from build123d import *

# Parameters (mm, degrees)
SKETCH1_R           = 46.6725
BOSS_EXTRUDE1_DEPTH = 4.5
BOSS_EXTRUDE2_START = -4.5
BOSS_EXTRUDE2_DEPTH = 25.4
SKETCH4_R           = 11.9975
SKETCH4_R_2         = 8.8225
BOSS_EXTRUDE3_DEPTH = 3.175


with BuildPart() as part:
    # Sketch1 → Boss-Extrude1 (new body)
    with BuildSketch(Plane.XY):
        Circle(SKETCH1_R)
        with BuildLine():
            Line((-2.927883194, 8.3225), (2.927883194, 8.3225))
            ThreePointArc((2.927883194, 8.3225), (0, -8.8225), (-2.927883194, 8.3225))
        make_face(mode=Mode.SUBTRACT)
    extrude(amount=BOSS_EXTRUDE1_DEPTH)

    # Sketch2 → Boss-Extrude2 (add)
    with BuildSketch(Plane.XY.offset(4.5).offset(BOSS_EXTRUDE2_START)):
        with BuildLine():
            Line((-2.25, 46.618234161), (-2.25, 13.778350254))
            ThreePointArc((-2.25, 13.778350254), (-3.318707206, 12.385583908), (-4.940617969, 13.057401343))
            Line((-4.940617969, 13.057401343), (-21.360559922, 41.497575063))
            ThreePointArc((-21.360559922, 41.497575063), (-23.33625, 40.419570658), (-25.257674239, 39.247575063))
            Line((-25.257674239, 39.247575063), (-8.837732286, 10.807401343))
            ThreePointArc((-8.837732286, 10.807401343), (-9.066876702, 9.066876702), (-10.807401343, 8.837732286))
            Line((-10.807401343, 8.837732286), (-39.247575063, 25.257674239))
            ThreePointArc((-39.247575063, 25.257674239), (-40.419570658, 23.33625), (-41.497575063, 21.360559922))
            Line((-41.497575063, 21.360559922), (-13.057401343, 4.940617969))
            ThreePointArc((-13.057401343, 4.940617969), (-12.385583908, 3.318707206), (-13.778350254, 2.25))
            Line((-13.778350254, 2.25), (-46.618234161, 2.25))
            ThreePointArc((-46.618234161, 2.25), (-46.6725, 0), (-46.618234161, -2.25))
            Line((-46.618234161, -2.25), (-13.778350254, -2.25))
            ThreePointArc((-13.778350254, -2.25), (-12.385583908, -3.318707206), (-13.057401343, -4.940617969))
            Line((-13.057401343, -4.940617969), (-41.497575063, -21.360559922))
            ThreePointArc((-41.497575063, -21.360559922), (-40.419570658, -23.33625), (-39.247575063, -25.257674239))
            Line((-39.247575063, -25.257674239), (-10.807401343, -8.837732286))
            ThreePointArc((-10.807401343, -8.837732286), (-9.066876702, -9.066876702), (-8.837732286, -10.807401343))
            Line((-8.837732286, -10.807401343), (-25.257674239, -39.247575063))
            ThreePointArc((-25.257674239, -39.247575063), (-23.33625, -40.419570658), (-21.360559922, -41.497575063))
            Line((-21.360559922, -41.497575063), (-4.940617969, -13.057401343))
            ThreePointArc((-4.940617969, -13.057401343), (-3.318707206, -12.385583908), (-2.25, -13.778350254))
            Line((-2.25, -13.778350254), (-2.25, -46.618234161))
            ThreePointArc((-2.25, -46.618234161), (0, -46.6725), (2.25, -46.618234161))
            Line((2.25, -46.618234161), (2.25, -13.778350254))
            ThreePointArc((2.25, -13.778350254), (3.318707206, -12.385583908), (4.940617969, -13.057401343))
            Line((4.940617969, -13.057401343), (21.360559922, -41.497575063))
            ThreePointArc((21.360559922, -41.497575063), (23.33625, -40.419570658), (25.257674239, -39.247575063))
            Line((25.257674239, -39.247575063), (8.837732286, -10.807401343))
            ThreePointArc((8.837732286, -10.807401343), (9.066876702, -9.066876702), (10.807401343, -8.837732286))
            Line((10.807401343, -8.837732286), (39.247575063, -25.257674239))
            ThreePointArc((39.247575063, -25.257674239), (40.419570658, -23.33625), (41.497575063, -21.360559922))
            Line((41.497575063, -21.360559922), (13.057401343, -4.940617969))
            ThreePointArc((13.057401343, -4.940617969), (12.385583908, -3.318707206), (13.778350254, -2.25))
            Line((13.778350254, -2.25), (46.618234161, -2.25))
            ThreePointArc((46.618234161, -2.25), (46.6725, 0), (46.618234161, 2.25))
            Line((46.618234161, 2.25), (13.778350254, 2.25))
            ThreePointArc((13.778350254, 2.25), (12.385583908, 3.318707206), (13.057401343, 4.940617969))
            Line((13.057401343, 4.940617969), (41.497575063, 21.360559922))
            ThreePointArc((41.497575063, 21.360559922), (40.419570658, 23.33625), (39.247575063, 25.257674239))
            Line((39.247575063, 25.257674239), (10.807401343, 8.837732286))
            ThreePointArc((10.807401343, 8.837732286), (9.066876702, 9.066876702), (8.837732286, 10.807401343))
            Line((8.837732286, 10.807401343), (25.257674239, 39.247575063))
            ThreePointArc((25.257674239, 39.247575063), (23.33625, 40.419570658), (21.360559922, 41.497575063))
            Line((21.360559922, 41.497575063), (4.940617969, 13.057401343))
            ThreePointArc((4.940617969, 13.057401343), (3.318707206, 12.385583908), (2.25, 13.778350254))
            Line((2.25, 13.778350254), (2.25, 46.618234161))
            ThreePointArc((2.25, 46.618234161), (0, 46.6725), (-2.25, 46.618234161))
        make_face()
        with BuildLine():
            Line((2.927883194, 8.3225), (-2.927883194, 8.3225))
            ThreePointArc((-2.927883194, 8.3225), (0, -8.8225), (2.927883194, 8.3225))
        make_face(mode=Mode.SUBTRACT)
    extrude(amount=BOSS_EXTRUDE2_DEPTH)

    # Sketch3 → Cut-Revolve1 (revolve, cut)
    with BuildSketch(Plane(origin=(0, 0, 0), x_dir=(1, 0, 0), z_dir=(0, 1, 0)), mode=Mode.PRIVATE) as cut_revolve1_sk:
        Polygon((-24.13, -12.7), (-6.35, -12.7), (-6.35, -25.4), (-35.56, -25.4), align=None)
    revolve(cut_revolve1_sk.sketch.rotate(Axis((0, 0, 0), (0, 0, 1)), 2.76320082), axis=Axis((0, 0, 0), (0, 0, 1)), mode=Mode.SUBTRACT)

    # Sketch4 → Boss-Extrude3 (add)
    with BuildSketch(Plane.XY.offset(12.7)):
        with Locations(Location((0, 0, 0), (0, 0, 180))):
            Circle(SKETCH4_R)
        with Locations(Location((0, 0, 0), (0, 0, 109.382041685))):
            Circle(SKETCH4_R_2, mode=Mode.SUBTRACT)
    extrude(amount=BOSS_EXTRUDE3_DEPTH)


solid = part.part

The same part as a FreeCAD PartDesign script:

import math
import FreeCAD as App
import Part
import Sketcher
from FreeCAD import Vector
Q = App.Units.Quantity


def add_polygon(sketch, points):
    """Adds a closed chain of lines whose ends are joined by coincident constraints."""
    first, n = sketch.GeometryCount, len(points)
    for a, b in zip(points, points[1:] + points[:1]):
        sketch.addGeometry(Part.LineSegment(App.Vector(*a, 0), App.Vector(*b, 0)), False)
    for i in range(n):
        sketch.addConstraint(Sketcher.Constraint("Coincident", first + i, 2, first + (i + 1) % n, 1))

doc = App.newDocument("Part")
params = doc.addObject("Spreadsheet::Sheet", "Params")
for row, (alias, value) in enumerate([
    ("sketch1_diameter", "3.675 in"),
    ("pad1_length", "4.5 mm"),
    ("pad2_length", "1 in"),
    ("sketch3_width", "0.7 in"),
    ("sketch3_height", "0.5 in"),
    ("sketch3_width2", "1.15 in"),
    ("groove_angle", "360 deg"),
    ("pad3_length", "0.125 in"),
], start=1):
    params.set(f"A{row}", alias)
    params.set(f"B{row}", "=" + value)
    params.setAlias(f"B{row}", alias)

body = doc.addObject("PartDesign::Body", "Body")

sketch1 = body.newObject("Sketcher::SketchObject", "Sketch")
sketch1.AttachmentSupport = (doc.getObject("XY_Plane"), [""])
sketch1.MapMode = "FlatFace"
sketch1.addGeometry([
    Part.Circle(Vector(0, 0, 0), Vector(0, 0, 1), 47),
    Part.ArcOfCircle(Part.Circle(Vector(0, 0, 0), Vector(0, 0, 1), 9), math.radians(109), math.radians(431)),
    Part.LineSegment(Vector(-3, 8, 0), Vector(3, 8, 0)),
], False)
sketch1.addConstraint([
    Sketcher.Constraint("Coincident", 1, 1, 2, 1),
    Sketcher.Constraint("Coincident", 2, 2, 1, 2),
    Sketcher.Constraint("Horizontal", 2),
    Sketcher.Constraint("Coincident", 0, 3, -1, 1),
    Sketcher.Constraint("Coincident", 1, 3, -1, 1),
    Sketcher.Constraint("Diameter", 0, Q("3.675 in")),
    Sketcher.Constraint("Radius", 1, Q("8.8225 mm")),
    Sketcher.Constraint("DistanceY", -1, 1, 1, 1, Q("8.3225 mm")),
])
sketch1.setExpression("Constraints[5]", "Params.sketch1_diameter")
pad1 = body.newObject("PartDesign::Pad", "Pad")
pad1.Profile = sketch1
pad1.setExpression("Length", "Params.pad1_length")

sketch2 = body.newObject("Sketcher::SketchObject", "Sketch001")
sketch2.AttachmentSupport = (doc.getObject("XY_Plane"), [""])
sketch2.MapMode = "FlatFace"
sketch2.addGeometry([
    Part.LineSegment(Vector(-2.2, 46.6, 0), Vector(-2.2, 13.8, 0)),
    Part.ArcOfCircle(Part.Circle(Vector(-3.7, 13.8, 0), Vector(0, 0, 1), 1.4), math.radians(-150), math.radians(0)),
    Part.LineSegment(Vector(-4.9, 13.1, 0), Vector(-21.4, 41.5, 0)),
    Part.ArcOfCircle(Part.Circle(Vector(0, 0, 0), Vector(0, 0, 1), 46.7), math.radians(117.24), math.radians(122.76)),
    Part.LineSegment(Vector(-25.3, 39.2, 0), Vector(-8.8, 10.8, 0)),
    Part.ArcOfCircle(Part.Circle(Vector(-10.1, 10.1, 0), Vector(0, 0, 1), 1.4), math.radians(-120), math.radians(30)),
    Part.LineSegment(Vector(-10.8, 8.8, 0), Vector(-39.2, 25.3, 0)),
    Part.ArcOfCircle(Part.Circle(Vector(0, 0, 0), Vector(0, 0, 1), 46.7), math.radians(147.24), math.radians(152.76)),
    Part.LineSegment(Vector(-41.5, 21.4, 0), Vector(-13.1, 4.9, 0)),
    Part.ArcOfCircle(Part.Circle(Vector(-13.8, 3.7, 0), Vector(0, 0, 1), 1.4), math.radians(-90), math.radians(60)),
    Part.LineSegment(Vector(-13.8, 2.2, 0), Vector(-46.6, 2.2, 0)),
    Part.ArcOfCircle(Part.Circle(Vector(0, 0, 0), Vector(0, 0, 1), 46.7), math.radians(177.24), math.radians(182.76)),
    Part.LineSegment(Vector(-46.6, -2.2, 0), Vector(-13.8, -2.2, 0)),
    Part.ArcOfCircle(Part.Circle(Vector(-13.8, -3.7, 0), Vector(0, 0, 1), 1.4), math.radians(-60), math.radians(90)),
    Part.LineSegment(Vector(-13.1, -4.9, 0), Vector(-41.5, -21.4, 0)),
    Part.ArcOfCircle(Part.Circle(Vector(0, 0, 0), Vector(0, 0, 1), 46.7), math.radians(-152.76), math.radians(-147.24)),
    Part.LineSegment(Vector(-39.2, -25.3, 0), Vector(-10.8, -8.8, 0)),
    Part.ArcOfCircle(Part.Circle(Vector(-10.1, -10.1, 0), Vector(0, 0, 1), 1.4), math.radians(-30), math.radians(120)),
    Part.LineSegment(Vector(-8.8, -10.8, 0), Vector(-25.3, -39.2, 0)),
    Part.ArcOfCircle(Part.Circle(Vector(0, 0, 0), Vector(0, 0, 1), 46.7), math.radians(-122.76), math.radians(-117.24)),
    Part.LineSegment(Vector(-21.4, -41.5, 0), Vector(-4.9, -13.1, 0)),
    Part.ArcOfCircle(Part.Circle(Vector(-3.7, -13.8, 0), Vector(0, 0, 1), 1.4), math.radians(0), math.radians(150)),
    Part.LineSegment(Vector(-2.2, -13.8, 0), Vector(-2.2, -46.6, 0)),
    Part.ArcOfCircle(Part.Circle(Vector(0, 0, 0), Vector(0, 0, 1), 46.7), math.radians(-92.76), math.radians(-87.24)),
    Part.LineSegment(Vector(2.2, -46.6, 0), Vector(2.2, -13.8, 0)),
    Part.ArcOfCircle(Part.Circle(Vector(3.7, -13.8, 0), Vector(0, 0, 1), 1.4), math.radians(30), math.radians(180)),
    Part.LineSegment(Vector(4.9, -13.1, 0), Vector(21.4, -41.5, 0)),
    Part.ArcOfCircle(Part.Circle(Vector(0, 0, 0), Vector(0, 0, 1), 46.7), math.radians(-62.76), math.radians(-57.24)),
    Part.LineSegment(Vector(25.3, -39.2, 0), Vector(8.8, -10.8, 0)),
    Part.ArcOfCircle(Part.Circle(Vector(10.1, -10.1, 0), Vector(0, 0, 1), 1.4), math.radians(60), math.radians(210)),
    Part.LineSegment(Vector(10.8, -8.8, 0), Vector(39.2, -25.3, 0)),
    Part.ArcOfCircle(Part.Circle(Vector(0, 0, 0), Vector(0, 0, 1), 46.7), math.radians(-32.76), math.radians(-27.24)),
    Part.LineSegment(Vector(41.5, -21.4, 0), Vector(13.1, -4.9, 0)),
    Part.ArcOfCircle(Part.Circle(Vector(13.8, -3.7, 0), Vector(0, 0, 1), 1.4), math.radians(90), math.radians(240)),
    Part.LineSegment(Vector(13.8, -2.2, 0), Vector(46.6, -2.2, 0)),
    Part.ArcOfCircle(Part.Circle(Vector(0, 0, 0), Vector(0, 0, 1), 46.7), math.radians(-2.76), math.radians(2.76)),
    Part.LineSegment(Vector(46.6, 2.2, 0), Vector(13.8, 2.2, 0)),
    Part.ArcOfCircle(Part.Circle(Vector(13.8, 3.7, 0), Vector(0, 0, 1), 1.4), math.radians(120), math.radians(270)),
    Part.LineSegment(Vector(13.1, 4.9, 0), Vector(41.5, 21.4, 0)),
    Part.ArcOfCircle(Part.Circle(Vector(0, 0, 0), Vector(0, 0, 1), 46.7), math.radians(27.24), math.radians(32.76)),
    Part.LineSegment(Vector(39.2, 25.3, 0), Vector(10.8, 8.8, 0)),
    Part.ArcOfCircle(Part.Circle(Vector(10.1, 10.1, 0), Vector(0, 0, 1), 1.4), math.radians(150), math.radians(300)),
    Part.LineSegment(Vector(8.8, 10.8, 0), Vector(25.3, 39.2, 0)),
    Part.ArcOfCircle(Part.Circle(Vector(0, 0, 0), Vector(0, 0, 1), 46.7), math.radians(57.24), math.radians(62.76)),
    Part.LineSegment(Vector(21.4, 41.5, 0), Vector(4.9, 13.1, 0)),
    Part.ArcOfCircle(Part.Circle(Vector(3.7, 13.8, 0), Vector(0, 0, 1), 1.4), math.radians(-180), math.radians(-30)),
    Part.LineSegment(Vector(2.2, 13.8, 0), Vector(2.2, 46.6, 0)),
    Part.ArcOfCircle(Part.Circle(Vector(0, 0, 0), Vector(0, 0, 1), 46.7), math.radians(87.24), math.radians(92.76)),
    Part.LineSegment(Vector(-2.9, 8.3, 0), Vector(2.9, 8.3, 0)),
    Part.ArcOfCircle(Part.Circle(Vector(0, 0, 0), Vector(0, 0, 1), 8.8), math.radians(109), math.radians(431)),
], False)
sketch2.addConstraint([
    Sketcher.Constraint("Tangent", 0, 2, 1, 2),
    Sketcher.Constraint("Tangent", 1, 1, 2, 1),
    Sketcher.Constraint("Coincident", 2, 2, 3, 1),
    Sketcher.Constraint("Coincident", 3, 2, 4, 1),
    Sketcher.Constraint("Tangent", 4, 2, 5, 2),
    Sketcher.Constraint("Tangent", 5, 1, 6, 1),
    Sketcher.Constraint("Coincident", 6, 2, 7, 1),
    Sketcher.Constraint("Coincident", 7, 2, 8, 1),
    Sketcher.Constraint("Tangent", 8, 2, 9, 2),
    Sketcher.Constraint("Tangent", 9, 1, 10, 1),
    Sketcher.Constraint("Coincident", 10, 2, 11, 1),
    Sketcher.Constraint("Coincident", 11, 2, 12, 1),
    Sketcher.Constraint("Tangent", 12, 2, 13, 2),
    Sketcher.Constraint("Tangent", 13, 1, 14, 1),
    Sketcher.Constraint("Coincident", 14, 2, 15, 1),
    Sketcher.Constraint("Coincident", 15, 2, 16, 1),
    Sketcher.Constraint("Tangent", 16, 2, 17, 2),
    Sketcher.Constraint("Tangent", 17, 1, 18, 1),
    Sketcher.Constraint("Coincident", 18, 2, 19, 1),
    Sketcher.Constraint("Coincident", 19, 2, 20, 1),
    Sketcher.Constraint("Tangent", 20, 2, 21, 2),
    Sketcher.Constraint("Tangent", 21, 1, 22, 1),
    Sketcher.Constraint("Coincident", 22, 2, 23, 1),
    Sketcher.Constraint("Coincident", 23, 2, 24, 1),
    Sketcher.Constraint("Tangent", 24, 2, 25, 2),
    Sketcher.Constraint("Tangent", 25, 1, 26, 1),
    Sketcher.Constraint("Coincident", 26, 2, 27, 1),
    Sketcher.Constraint("Coincident", 27, 2, 28, 1),
    Sketcher.Constraint("Tangent", 28, 2, 29, 2),
    Sketcher.Constraint("Tangent", 29, 1, 30, 1),
    Sketcher.Constraint("Coincident", 30, 2, 31, 1),
    Sketcher.Constraint("Coincident", 31, 2, 32, 1),
    Sketcher.Constraint("Tangent", 32, 2, 33, 2),
    Sketcher.Constraint("Tangent", 33, 1, 34, 1),
    Sketcher.Constraint("Coincident", 34, 2, 35, 1),
    Sketcher.Constraint("Coincident", 35, 2, 36, 1),
    Sketcher.Constraint("Tangent", 36, 2, 37, 2),
    Sketcher.Constraint("Tangent", 37, 1, 38, 1),
    Sketcher.Constraint("Coincident", 38, 2, 39, 1),
    Sketcher.Constraint("Coincident", 39, 2, 40, 1),
    Sketcher.Constraint("Tangent", 40, 2, 41, 2),
    Sketcher.Constraint("Tangent", 41, 1, 42, 1),
    Sketcher.Constraint("Coincident", 42, 2, 43, 1),
    Sketcher.Constraint("Coincident", 43, 2, 44, 1),
    Sketcher.Constraint("Tangent", 44, 2, 45, 2),
    Sketcher.Constraint("Tangent", 45, 1, 46, 1),
    Sketcher.Constraint("Coincident", 46, 2, 47, 1),
    Sketcher.Constraint("Coincident", 47, 2, 0, 1),
    Sketcher.Constraint("Coincident", 48, 1, 49, 1),
    Sketcher.Constraint("Coincident", 49, 2, 48, 2),
    Sketcher.Constraint("Vertical", 0),
    Sketcher.Constraint("Horizontal", 10),
    Sketcher.Constraint("Horizontal", 12),
    Sketcher.Constraint("Vertical", 22),
    Sketcher.Constraint("Vertical", 24),
    Sketcher.Constraint("Horizontal", 34),
    Sketcher.Constraint("Horizontal", 36),
    Sketcher.Constraint("Vertical", 46),
    Sketcher.Constraint("Horizontal", 48),
    Sketcher.Constraint("Coincident", 3, 3, -1, 1),
    Sketcher.Constraint("Coincident", 7, 3, -1, 1),
    Sketcher.Constraint("Coincident", 11, 3, -1, 1),
    Sketcher.Constraint("Coincident", 15, 3, -1, 1),
    Sketcher.Constraint("Coincident", 19, 3, -1, 1),
    Sketcher.Constraint("Coincident", 23, 3, -1, 1),
    Sketcher.Constraint("Coincident", 27, 3, -1, 1),
    Sketcher.Constraint("Coincident", 31, 3, -1, 1),
    Sketcher.Constraint("Coincident", 35, 3, -1, 1),
    Sketcher.Constraint("Coincident", 39, 3, -1, 1),
    Sketcher.Constraint("Coincident", 43, 3, -1, 1),
    Sketcher.Constraint("Coincident", 47, 3, -1, 1),
    Sketcher.Constraint("Coincident", 49, 3, -1, 1),
    Sketcher.Constraint("Equal", 1, 5),
    Sketcher.Constraint("Equal", 3, 7),
    Sketcher.Constraint("Equal", 5, 9),
    Sketcher.Constraint("Equal", 7, 11),
    Sketcher.Constraint("Equal", 9, 13),
    Sketcher.Constraint("Equal", 11, 15),
    Sketcher.Constraint("Equal", 13, 17),
    Sketcher.Constraint("Equal", 15, 19),
    Sketcher.Constraint("Equal", 17, 21),
    Sketcher.Constraint("Equal", 19, 23),
    Sketcher.Constraint("Equal", 21, 25),
    Sketcher.Constraint("Equal", 23, 27),
    Sketcher.Constraint("Equal", 25, 29),
    Sketcher.Constraint("Equal", 27, 31),
    Sketcher.Constraint("Equal", 29, 33),
    Sketcher.Constraint("Equal", 31, 35),
    Sketcher.Constraint("Equal", 33, 37),
    Sketcher.Constraint("Equal", 35, 39),
    Sketcher.Constraint("Equal", 37, 41),
    Sketcher.Constraint("Equal", 39, 43),
    Sketcher.Constraint("Equal", 41, 45),
    Sketcher.Constraint("Equal", 43, 47),
    Sketcher.Constraint("Symmetric", 1, 3, 25, 3, -1, 1),
    Sketcher.Constraint("Symmetric", 5, 3, 29, 3, -1, 1),
    Sketcher.Constraint("Symmetric", 9, 3, 33, 3, -1, 1),
    Sketcher.Constraint("Symmetric", 13, 3, 37, 3, -1, 1),
    Sketcher.Constraint("Symmetric", 17, 3, 41, 3, -1, 1),
    Sketcher.Constraint("Symmetric", 21, 3, 45, 3, -1, 1),
    Sketcher.Constraint("Symmetric", 21, 3, 25, 3, -2),
    Sketcher.Constraint("Symmetric", 17, 3, 29, 3, -2),
    Sketcher.Constraint("Symmetric", 13, 3, 33, 3, -2),
    Sketcher.Constraint("Parallel", 2, 4),
    Sketcher.Constraint("Parallel", 6, 8),
    Sketcher.Constraint("Perpendicular", 4, 14),
    Sketcher.Constraint("Parallel", 14, 16),
    Sketcher.Constraint("Perpendicular", 8, 18),
    Sketcher.Constraint("Parallel", 18, 20),
    Sketcher.Constraint("Perpendicular", 16, 26),
    Sketcher.Constraint("Parallel", 26, 28),
    Sketcher.Constraint("Perpendicular", 20, 30),
    Sketcher.Constraint("Parallel", 30, 32),
    Sketcher.Constraint("Perpendicular", 28, 38),
    Sketcher.Constraint("Parallel", 38, 40),
    Sketcher.Constraint("Perpendicular", 32, 42),
    Sketcher.Constraint("Parallel", 42, 44),
    Sketcher.Constraint("Horizontal", 20, 2, 25, 1),
    Sketcher.Constraint("Equal", 36, 0),
    Sketcher.Constraint("Equal", 2, 4),
    Sketcher.Constraint("Equal", 4, 6),
    Sketcher.Constraint("Equal", 6, 8),
    Sketcher.Constraint("Angle", 2, Q("120 deg")),
    Sketcher.Constraint("Radius", 3, Q("1.8375 in")),
    Sketcher.Constraint("Radius", 49, Q("8.8225 mm")),
    Sketcher.Constraint("Radius", 1, Q("1.441898 mm")),
    Sketcher.Constraint("DistanceX", 0, 2, -1, 1, Q("2.25 mm")),
    Sketcher.Constraint("DistanceY", -1, 1, 1, 1, Q("13.057401 mm")),
    Sketcher.Constraint("DistanceY", -1, 1, 48, 1, Q("8.3225 mm")),
])
pad2 = body.newObject("PartDesign::Pad", "Pad001")
pad2.Profile = sketch2
pad2.setExpression("Length", "Params.pad2_length")

sketch3 = body.newObject("Sketcher::SketchObject", "Sketch002")
sketch3.AttachmentSupport = (doc.getObject("XZ_Plane"), [""])
sketch3.MapMode = "FlatFace"
add_polygon(sketch3, [(-6, 13), (-24, 13), (-36, 25), (-6, 25)])
sketch3.addConstraint([
    Sketcher.Constraint("Horizontal", 0),
    Sketcher.Constraint("Horizontal", 2),
    Sketcher.Constraint("Vertical", 3),
    Sketcher.Constraint("DistanceX", 0, 2, 0, 1, Q("0.7 in")),
    Sketcher.Constraint("DistanceY", 3, 2, 3, 1, Q("0.5 in")),
    Sketcher.Constraint("DistanceY", -1, 1, 1, 2, Q("1 in")),
    Sketcher.Constraint("DistanceX", 2, 1, 2, 2, Q("1.15 in")),
    Sketcher.Constraint("DistanceX", 1, 2, -1, 1, Q("1.4 in")),
])
sketch3.setExpression("Constraints[7]", "Params.sketch3_width")
sketch3.setExpression("Constraints[8]", "Params.sketch3_height")
sketch3.setExpression("Constraints[10]", "Params.sketch3_width2")
groove = body.newObject("PartDesign::Groove", "Groove")
groove.Profile = sketch3
groove.ReferenceAxis = (sketch3, ["V_Axis"])
groove.setExpression("Angle", "Params.groove_angle")

sketch4 = body.newObject("Sketcher::SketchObject", "Sketch003")
sketch4.AttachmentSupport = (doc.getObject("XY_Plane"), [""])
sketch4.MapMode = "FlatFace"
sketch4.AttachmentOffset = App.Placement(Vector(0, 0, 0.5 * 25.4), App.Rotation())
sketch4.addGeometry([
    Part.Circle(Vector(0, 0, 0), Vector(0, 0, 1), 12),
    Part.Circle(Vector(0, 0, 0), Vector(0, 0, 1), 9),
], False)
sketch4.addConstraint([
    Sketcher.Constraint("Coincident", 0, 3, -1, 1),
    Sketcher.Constraint("Coincident", 1, 3, -1, 1),
    Sketcher.Constraint("Diameter", 0, Q("23.995 mm")),
    Sketcher.Constraint("Diameter", 1, Q("17.645 mm")),
])
pad3 = body.newObject("PartDesign::Pad", "Pad002")
pad3.Profile = sketch4
pad3.setExpression("Length", "Params.pad3_length")

doc.recompute()
